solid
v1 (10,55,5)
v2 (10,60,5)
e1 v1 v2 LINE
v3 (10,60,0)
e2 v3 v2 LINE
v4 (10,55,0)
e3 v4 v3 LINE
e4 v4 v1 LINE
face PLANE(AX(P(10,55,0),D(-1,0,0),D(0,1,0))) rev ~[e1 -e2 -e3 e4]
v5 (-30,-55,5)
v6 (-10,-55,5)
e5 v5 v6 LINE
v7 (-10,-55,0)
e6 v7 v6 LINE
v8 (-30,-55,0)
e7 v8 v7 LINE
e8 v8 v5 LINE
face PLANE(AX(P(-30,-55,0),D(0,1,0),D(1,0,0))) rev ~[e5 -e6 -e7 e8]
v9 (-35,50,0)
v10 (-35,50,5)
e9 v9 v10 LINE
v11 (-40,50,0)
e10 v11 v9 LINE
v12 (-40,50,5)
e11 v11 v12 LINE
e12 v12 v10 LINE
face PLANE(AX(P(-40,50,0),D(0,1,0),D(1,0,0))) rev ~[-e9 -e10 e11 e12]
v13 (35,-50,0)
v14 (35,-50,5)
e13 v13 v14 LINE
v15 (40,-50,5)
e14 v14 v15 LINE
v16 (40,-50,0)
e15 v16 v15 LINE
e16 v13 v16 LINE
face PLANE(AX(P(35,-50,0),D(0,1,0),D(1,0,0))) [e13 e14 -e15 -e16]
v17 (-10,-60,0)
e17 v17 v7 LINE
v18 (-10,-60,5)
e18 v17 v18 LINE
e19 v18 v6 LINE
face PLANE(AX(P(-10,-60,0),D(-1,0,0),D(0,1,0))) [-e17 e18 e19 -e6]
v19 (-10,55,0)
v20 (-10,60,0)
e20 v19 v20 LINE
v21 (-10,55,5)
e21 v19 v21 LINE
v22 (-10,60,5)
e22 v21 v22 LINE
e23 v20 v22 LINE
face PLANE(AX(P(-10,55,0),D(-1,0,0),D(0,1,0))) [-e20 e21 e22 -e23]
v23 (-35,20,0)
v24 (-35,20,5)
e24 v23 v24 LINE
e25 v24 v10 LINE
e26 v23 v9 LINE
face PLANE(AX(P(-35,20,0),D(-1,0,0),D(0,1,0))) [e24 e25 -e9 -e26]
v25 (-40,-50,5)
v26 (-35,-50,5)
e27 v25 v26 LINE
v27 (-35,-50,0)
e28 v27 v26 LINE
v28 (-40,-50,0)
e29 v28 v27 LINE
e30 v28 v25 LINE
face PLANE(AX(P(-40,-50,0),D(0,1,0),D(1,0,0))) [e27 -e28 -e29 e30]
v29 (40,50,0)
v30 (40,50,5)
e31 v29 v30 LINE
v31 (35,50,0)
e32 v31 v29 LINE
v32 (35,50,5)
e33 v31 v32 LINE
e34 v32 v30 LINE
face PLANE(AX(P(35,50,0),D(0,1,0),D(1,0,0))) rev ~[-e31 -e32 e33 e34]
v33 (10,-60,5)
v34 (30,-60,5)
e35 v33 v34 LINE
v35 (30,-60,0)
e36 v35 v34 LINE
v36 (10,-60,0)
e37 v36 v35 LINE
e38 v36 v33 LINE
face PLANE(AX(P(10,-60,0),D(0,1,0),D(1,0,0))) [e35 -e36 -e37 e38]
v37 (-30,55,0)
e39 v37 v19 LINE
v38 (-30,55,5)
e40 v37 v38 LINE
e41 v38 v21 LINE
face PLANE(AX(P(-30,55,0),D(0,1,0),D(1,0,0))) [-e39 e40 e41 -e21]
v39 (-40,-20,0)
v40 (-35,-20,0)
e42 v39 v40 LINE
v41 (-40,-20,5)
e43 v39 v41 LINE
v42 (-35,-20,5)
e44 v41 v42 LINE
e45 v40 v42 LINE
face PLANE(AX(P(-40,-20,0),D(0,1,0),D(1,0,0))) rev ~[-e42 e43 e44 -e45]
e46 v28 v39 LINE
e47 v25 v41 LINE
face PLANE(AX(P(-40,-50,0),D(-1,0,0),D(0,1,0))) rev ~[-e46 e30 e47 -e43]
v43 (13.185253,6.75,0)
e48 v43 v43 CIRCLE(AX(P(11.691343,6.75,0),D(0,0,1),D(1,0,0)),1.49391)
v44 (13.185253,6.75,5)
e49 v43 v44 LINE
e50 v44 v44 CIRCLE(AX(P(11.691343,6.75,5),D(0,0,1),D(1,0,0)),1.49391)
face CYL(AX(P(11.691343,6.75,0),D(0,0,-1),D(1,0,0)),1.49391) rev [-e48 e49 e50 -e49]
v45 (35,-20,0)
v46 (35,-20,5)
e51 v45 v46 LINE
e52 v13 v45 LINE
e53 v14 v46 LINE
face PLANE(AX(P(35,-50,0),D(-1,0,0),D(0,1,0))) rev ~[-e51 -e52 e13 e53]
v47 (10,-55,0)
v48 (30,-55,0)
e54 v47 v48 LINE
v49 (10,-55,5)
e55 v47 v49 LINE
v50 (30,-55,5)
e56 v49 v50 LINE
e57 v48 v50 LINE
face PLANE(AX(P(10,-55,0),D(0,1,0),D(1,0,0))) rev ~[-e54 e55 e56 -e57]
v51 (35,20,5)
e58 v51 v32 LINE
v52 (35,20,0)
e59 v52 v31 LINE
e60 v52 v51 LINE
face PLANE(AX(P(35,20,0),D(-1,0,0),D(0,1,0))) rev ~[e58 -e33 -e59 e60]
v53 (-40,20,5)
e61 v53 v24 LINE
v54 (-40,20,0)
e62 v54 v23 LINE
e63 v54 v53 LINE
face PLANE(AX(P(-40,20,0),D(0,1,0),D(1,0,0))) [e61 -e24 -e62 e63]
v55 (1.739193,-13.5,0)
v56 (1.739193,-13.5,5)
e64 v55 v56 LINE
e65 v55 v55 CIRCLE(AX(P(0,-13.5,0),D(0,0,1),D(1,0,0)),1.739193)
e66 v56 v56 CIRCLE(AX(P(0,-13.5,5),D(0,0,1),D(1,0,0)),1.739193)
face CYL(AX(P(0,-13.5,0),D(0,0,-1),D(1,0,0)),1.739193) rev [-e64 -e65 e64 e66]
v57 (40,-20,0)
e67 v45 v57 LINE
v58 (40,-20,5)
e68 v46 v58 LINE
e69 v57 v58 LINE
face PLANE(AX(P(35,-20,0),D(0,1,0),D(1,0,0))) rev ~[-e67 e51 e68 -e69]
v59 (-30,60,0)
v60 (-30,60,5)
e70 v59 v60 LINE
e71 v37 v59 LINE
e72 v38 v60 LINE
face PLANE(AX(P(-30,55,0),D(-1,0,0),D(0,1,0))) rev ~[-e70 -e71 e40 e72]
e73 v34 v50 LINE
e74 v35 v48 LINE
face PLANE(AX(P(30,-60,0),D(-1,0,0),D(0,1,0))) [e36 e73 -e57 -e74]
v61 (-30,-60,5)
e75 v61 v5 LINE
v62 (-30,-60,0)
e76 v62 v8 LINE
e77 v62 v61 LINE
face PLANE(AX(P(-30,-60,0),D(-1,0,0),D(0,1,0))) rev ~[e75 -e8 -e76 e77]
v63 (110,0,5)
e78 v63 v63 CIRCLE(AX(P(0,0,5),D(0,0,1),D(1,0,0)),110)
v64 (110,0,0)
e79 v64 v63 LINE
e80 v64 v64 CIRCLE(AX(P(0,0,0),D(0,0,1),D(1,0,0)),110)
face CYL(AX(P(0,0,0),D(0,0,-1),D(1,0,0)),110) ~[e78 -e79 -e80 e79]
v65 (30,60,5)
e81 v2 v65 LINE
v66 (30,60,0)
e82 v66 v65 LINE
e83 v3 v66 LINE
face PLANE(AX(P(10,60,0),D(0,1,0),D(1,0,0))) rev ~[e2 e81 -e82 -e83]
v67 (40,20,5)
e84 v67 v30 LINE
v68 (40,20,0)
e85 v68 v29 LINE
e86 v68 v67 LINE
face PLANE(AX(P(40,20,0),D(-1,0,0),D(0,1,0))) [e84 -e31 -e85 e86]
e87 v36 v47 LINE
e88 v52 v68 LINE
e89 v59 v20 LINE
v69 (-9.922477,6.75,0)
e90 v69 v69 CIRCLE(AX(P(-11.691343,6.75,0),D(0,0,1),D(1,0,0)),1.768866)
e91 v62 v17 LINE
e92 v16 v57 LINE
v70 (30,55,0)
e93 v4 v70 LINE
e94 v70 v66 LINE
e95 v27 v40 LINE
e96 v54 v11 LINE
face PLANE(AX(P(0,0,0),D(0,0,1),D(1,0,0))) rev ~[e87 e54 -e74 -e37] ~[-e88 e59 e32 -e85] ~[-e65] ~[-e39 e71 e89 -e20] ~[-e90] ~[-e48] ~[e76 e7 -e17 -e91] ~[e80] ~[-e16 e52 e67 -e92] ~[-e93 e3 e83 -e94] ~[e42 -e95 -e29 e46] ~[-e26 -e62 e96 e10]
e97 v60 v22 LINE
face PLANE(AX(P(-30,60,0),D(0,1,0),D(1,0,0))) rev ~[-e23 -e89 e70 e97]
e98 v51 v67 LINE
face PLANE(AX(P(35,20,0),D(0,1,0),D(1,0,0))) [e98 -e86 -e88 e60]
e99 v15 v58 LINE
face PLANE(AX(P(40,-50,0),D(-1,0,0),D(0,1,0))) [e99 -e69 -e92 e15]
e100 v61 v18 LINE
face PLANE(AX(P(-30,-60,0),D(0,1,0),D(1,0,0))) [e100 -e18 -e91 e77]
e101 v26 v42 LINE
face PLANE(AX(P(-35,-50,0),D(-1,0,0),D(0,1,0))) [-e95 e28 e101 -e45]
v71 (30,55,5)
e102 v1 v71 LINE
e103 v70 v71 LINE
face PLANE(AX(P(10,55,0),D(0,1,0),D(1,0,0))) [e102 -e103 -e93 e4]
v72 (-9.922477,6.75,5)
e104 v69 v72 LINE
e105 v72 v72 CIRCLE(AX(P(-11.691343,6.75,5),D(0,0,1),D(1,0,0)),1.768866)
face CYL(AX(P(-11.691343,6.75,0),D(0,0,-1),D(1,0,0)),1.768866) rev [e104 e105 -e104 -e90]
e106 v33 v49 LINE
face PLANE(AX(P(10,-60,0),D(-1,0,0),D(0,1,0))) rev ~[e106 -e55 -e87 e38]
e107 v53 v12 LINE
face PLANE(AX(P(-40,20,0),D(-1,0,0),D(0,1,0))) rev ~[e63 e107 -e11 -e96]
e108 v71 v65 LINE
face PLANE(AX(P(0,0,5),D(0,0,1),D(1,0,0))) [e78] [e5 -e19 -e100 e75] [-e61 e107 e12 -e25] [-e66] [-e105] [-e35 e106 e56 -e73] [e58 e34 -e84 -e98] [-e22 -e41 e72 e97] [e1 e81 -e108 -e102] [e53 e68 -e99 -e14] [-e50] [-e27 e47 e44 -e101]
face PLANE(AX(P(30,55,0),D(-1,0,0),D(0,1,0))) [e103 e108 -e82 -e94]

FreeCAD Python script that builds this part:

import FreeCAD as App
import Part
import Sketcher

V = App.Vector


def add_polygon(sketch, points):
    """Adds a closed chain of lines whose ends are joined by coincident constraints."""
    first, n = sketch.GeometryCount, len(points)
    for a, b in zip(points, points[1:] + points[:1]):
        sketch.addGeometry(Part.LineSegment(App.Vector(*a, 0), App.Vector(*b, 0)), False)
    for i in range(n):
        sketch.addConstraint(Sketcher.Constraint("Coincident", first + i, 2, first + (i + 1) % n, 1))

doc = App.newDocument("Part")
body = doc.addObject("PartDesign::Body", "Body")

sketch1 = body.newObject("Sketcher::SketchObject", "Sketch")
sketch1.AttachmentSupport = (doc.getObject("XY_Plane"), [""])
sketch1.MapMode = "FlatFace"
sketch1.addGeometry(Part.Circle(V(0, 0, 0), V(0, 0, 1), 110), False)
add_polygon(sketch1, [(-35, -50), (-40, -50), (-40, -20), (-35, -20)])
add_polygon(sketch1, [(-10, -60), (-30, -60), (-30, -55), (-10, -55)])
add_polygon(sketch1, [(30, -60), (10, -60), (10, -55), (30, -55)])
add_polygon(sketch1, [(40, -50), (35, -50), (35, -20), (40, -20)])
sketch1.addGeometry(Part.Circle(V(0, -13.5, 0), V(0, 0, 1), 1.7), False)
sketch1.addGeometry(Part.Circle(V(-11.7, 6.8, 0), V(0, 0, 1), 1.8), False)
add_polygon(sketch1, [(-35, 20), (-40, 20), (-40, 50), (-35, 50)])
add_polygon(sketch1, [(-10, 55), (-30, 55), (-30, 60), (-10, 60)])
sketch1.addGeometry(Part.Circle(V(11.7, 6.8, 0), V(0, 0, 1), 1.5), False)
add_polygon(sketch1, [(40, 20), (35, 20), (35, 50), (40, 50)])
add_polygon(sketch1, [(30, 55), (10, 55), (10, 60), (30, 60)])
sketch1.addConstraint([
    Sketcher.Constraint("Horizontal", 1),
    Sketcher.Constraint("Vertical", 2),
    Sketcher.Constraint("Horizontal", 3),
    Sketcher.Constraint("Vertical", 4),
    Sketcher.Constraint("Horizontal", 5),
    Sketcher.Constraint("Vertical", 6),
    Sketcher.Constraint("Horizontal", 7),
    Sketcher.Constraint("Vertical", 8),
    Sketcher.Constraint("Horizontal", 9),
    Sketcher.Constraint("Vertical", 10),
    Sketcher.Constraint("Horizontal", 11),
    Sketcher.Constraint("Vertical", 12),
    Sketcher.Constraint("Horizontal", 13),
    Sketcher.Constraint("Vertical", 14),
    Sketcher.Constraint("Horizontal", 15),
    Sketcher.Constraint("Vertical", 16),
    Sketcher.Constraint("Horizontal", 19),
    Sketcher.Constraint("Vertical", 20),
    Sketcher.Constraint("Horizontal", 21),
    Sketcher.Constraint("Vertical", 22),
    Sketcher.Constraint("Horizontal", 23),
    Sketcher.Constraint("Vertical", 24),
    Sketcher.Constraint("Horizontal", 25),
    Sketcher.Constraint("Vertical", 26),
    Sketcher.Constraint("Horizontal", 28),
    Sketcher.Constraint("Vertical", 29),
    Sketcher.Constraint("Horizontal", 30),
    Sketcher.Constraint("Vertical", 31),
    Sketcher.Constraint("Horizontal", 32),
    Sketcher.Constraint("Vertical", 33),
    Sketcher.Constraint("Horizontal", 34),
    Sketcher.Constraint("Vertical", 35),
    Sketcher.Constraint("Coincident", 0, 3, -1, 1),
    Sketcher.Constraint("Symmetric", 15, 2, 19, 2, -1, 1),
    Sketcher.Constraint("Symmetric", 13, 2, 21, 2, -1, 1),
    Sketcher.Constraint("Symmetric", 11, 2, 23, 2, -1, 1),
    Sketcher.Constraint("Symmetric", 9, 2, 25, 2, -1, 1),
    Sketcher.Constraint("Symmetric", 3, 2, 28, 2, -1, 1),
    Sketcher.Constraint("Symmetric", 1, 2, 30, 2, -1, 1),
    Sketcher.Constraint("Symmetric", 7, 2, 32, 2, -1, 1),
    Sketcher.Constraint("Symmetric", 5, 2, 34, 2, -1, 1),
    Sketcher.Constraint("Symmetric", 18, 3, 27, 3, -2),
    Sketcher.Constraint("Symmetric", 8, 2, 9, 2, -2),
    Sketcher.Constraint("Symmetric", 6, 2, 11, 2, -2),
    Sketcher.Constraint("Symmetric", 4, 2, 13, 2, -2),
    Sketcher.Constraint("Symmetric", 2, 2, 15, 2, -2),
    Sketcher.Constraint("PointOnObject", 17, 3, -2),
    Sketcher.Constraint("Equal", 30, 6),
    Sketcher.Constraint("Diameter", 0, 220.0),
    Sketcher.Constraint("DistanceX", 1, 2, 1, 1, 5.0),
    Sketcher.Constraint("DistanceX", 5, 2, 5, 1, 20.0),
    Sketcher.Constraint("DistanceY", 2, 1, 2, 2, 30.0),
    Sketcher.Constraint("DistanceX", 1, 2, -1, 1, 40.0),
    Sketcher.Constraint("DistanceY", 1, 2, -1, 1, 50.0),
    Sketcher.Constraint("DistanceX", 5, 2, -1, 1, 30.0),
    Sketcher.Constraint("DistanceY", 5, 2, -1, 1, 60.0),
    Sketcher.Constraint("DistanceY", 17, 3, -1, 1, 13.5),
    Sketcher.Constraint("Diameter", 27, 2.98782),
    Sketcher.Constraint("DistanceY", -1, 1, 18, 3, 6.75),
    Sketcher.Constraint("Diameter", 17, 3.478386),
    Sketcher.Constraint("Diameter", 18, 3.537733),
    Sketcher.Constraint("DistanceX", 18, 3, -1, 1, 11.691343),
])
pad1 = body.newObject("PartDesign::Pad", "Pad")
pad1.Profile = sketch1
pad1.Length = 5

doc.recompute()
